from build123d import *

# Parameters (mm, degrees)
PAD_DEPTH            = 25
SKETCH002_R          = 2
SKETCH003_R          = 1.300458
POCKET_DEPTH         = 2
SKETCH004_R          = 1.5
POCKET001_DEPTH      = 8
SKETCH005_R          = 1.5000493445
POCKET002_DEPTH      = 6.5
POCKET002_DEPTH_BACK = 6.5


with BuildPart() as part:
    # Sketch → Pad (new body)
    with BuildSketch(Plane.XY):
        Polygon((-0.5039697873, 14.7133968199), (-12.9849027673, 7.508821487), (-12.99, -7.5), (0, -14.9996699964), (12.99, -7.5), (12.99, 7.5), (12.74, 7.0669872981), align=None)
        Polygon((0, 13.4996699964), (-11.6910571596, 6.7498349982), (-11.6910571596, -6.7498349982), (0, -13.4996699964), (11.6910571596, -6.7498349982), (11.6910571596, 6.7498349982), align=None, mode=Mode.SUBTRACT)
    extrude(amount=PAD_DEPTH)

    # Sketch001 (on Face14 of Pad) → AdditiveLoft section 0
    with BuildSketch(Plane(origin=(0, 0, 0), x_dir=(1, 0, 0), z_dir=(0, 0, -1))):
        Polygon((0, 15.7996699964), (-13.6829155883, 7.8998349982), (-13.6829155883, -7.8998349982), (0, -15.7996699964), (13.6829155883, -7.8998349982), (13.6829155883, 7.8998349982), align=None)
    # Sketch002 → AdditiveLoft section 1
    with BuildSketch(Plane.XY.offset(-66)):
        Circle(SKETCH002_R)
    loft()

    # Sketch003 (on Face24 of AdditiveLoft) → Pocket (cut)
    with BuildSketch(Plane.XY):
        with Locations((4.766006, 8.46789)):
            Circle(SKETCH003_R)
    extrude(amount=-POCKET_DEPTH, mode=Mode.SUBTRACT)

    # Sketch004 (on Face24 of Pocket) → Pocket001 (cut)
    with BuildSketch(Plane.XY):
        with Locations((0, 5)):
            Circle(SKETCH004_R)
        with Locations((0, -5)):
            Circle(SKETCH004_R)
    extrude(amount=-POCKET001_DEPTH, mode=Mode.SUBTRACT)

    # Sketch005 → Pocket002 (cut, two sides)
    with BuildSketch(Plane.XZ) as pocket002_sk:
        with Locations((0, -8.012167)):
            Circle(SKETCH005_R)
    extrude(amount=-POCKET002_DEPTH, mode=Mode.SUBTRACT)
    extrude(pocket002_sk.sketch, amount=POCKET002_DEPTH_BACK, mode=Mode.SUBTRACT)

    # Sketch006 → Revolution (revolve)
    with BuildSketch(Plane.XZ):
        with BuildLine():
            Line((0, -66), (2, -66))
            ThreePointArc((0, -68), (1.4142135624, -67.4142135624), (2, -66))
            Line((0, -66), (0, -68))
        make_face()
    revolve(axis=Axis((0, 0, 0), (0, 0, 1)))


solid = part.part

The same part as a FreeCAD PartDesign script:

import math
import FreeCAD as App
import Part
import Sketcher
from FreeCAD import Vector
Q = App.Units.Quantity

doc = App.newDocument("Part")
body = doc.addObject("PartDesign::Body", "Body")

sketch1 = doc.addObject("Sketcher::SketchObject", "Sketch")
body.addObject(sketch1)
sketch1.AttachmentSupport = (doc.XY_Plane, [""])
sketch1.MapMode = "FlatFace"
sketch1.addGeometry(Part.LineSegment(Vector(-0.50397, 14.713397, 0), Vector(-12.984903, 7.508821, 0)), False)
sketch1.addGeometry(Part.LineSegment(Vector(-12.984903, 7.508821, 0), Vector(-12.99, -7.5, 0)), False)
sketch1.addGeometry(Part.LineSegment(Vector(-12.99, -7.5, 0), Vector(0, -14.99967, 0)), False)
sketch1.addGeometry(Part.LineSegment(Vector(0, -14.99967, 0), Vector(12.99, -7.5, 0)), False)
sketch1.addGeometry(Part.LineSegment(Vector(12.99, -7.5, 0), Vector(12.99, 7.5, 0)), False)
sketch1.addGeometry(Part.LineSegment(Vector(12.99, 7.5, 0), Vector(12.74, 7.066987, 0)), False)
sketch1.addGeometry(Part.LineSegment(Vector(12.74, 7.066987, 0), Vector(-0.50397, 14.713397, 0)), False)
sketch1.addGeometry(Part.LineSegment(Vector(-11.691057, 6.749835, 0), Vector(0, 13.49967, 0)), False)
sketch1.addGeometry(Part.LineSegment(Vector(0, 13.49967, 0), Vector(11.691057, 6.749835, 0)), False)
sketch1.addGeometry(Part.LineSegment(Vector(11.691057, 6.749835, 0), Vector(11.691057, -6.749835, 0)), False)
sketch1.addGeometry(Part.LineSegment(Vector(11.691057, -6.749835, 0), Vector(0, -13.49967, 0)), False)
sketch1.addGeometry(Part.LineSegment(Vector(0, -13.49967, 0), Vector(-11.691057, -6.749835, 0)), False)
sketch1.addGeometry(Part.LineSegment(Vector(-11.691057, -6.749835, 0), Vector(-11.691057, 6.749835, 0)), False)
sketch1.addConstraint(Sketcher.Constraint("Coincident", 0, 2, 1, 1))
sketch1.addConstraint(Sketcher.Constraint("Coincident", 1, 2, 2, 1))
sketch1.addConstraint(Sketcher.Constraint("Coincident", 2, 2, 3, 1))
sketch1.addConstraint(Sketcher.Constraint("Coincident", 3, 2, 4, 1))
sketch1.addConstraint(Sketcher.Constraint("Coincident", 4, 2, 5, 1))
sketch1.addConstraint(Sketcher.Constraint("Coincident", 5, 2, 6, 1))
sketch1.addConstraint(Sketcher.Constraint("Coincident", 6, 2, 0, 1))
sketch1.addConstraint(Sketcher.Constraint("Coincident", 7, 2, 8, 1))
sketch1.addConstraint(Sketcher.Constraint("Coincident", 8, 2, 9, 1))
sketch1.addConstraint(Sketcher.Constraint("Coincident", 9, 2, 10, 1))
sketch1.addConstraint(Sketcher.Constraint("Coincident", 10, 2, 11, 1))
sketch1.addConstraint(Sketcher.Constraint("Coincident", 11, 2, 12, 1))
sketch1.addConstraint(Sketcher.Constraint("Coincident", 12, 2, 7, 1))
sketch1.addConstraint(Sketcher.Constraint("Vertical", 4))
sketch1.addConstraint(Sketcher.Constraint("Vertical", 9))
sketch1.addConstraint(Sketcher.Constraint("Vertical", 12))
sketch1.addConstraint(Sketcher.Constraint("Symmetric", 1, 2, 4, 2, -1, 1))
sketch1.addConstraint(Sketcher.Constraint("Symmetric", 7, 2, 10, 2, -1, 1))
sketch1.addConstraint(Sketcher.Constraint("Symmetric", 8, 2, 11, 2, -1, 1))
sketch1.addConstraint(Sketcher.Constraint("PointOnObject", 2, 2, -2))
sketch1.addConstraint(Sketcher.Constraint("PointOnObject", 7, 2, -2))
sketch1.addConstraint(Sketcher.Constraint("Perpendicular", 5, 6))
sketch1.addConstraint(Sketcher.Constraint("Parallel", 6, 8))
sketch1.addConstraint(Sketcher.Constraint("Parallel", 7, 10))
sketch1.addConstraint(Sketcher.Constraint("Horizontal", 1, 2, 3, 2))
sketch1.addConstraint(Sketcher.Constraint("Horizontal", 9, 2, 11, 2))
sketch1.addConstraint(Sketcher.Constraint("DistanceY", 4, 1, 4, 2, Q("15 mm")))
sketch1.addConstraint(Sketcher.Constraint("Angle", 5, Q("-120 deg")))
sketch1.addConstraint(Sketcher.Constraint("Distance", 5, Q("0.5 mm")))
sketch1.addConstraint(Sketcher.Constraint("DistanceY", 2, 2, 10, 2, Q("1.5 mm")))
sketch1.addConstraint(Sketcher.Constraint("DistanceX", 1, 2, -1, 1, Q("12.99 mm")))
sketch1.addConstraint(Sketcher.Constraint("DistanceY", 9, 2, 9, 1, Q("13.49967 mm")))
sketch1.addConstraint(Sketcher.Constraint("Distance", 6, Q("15.292819 mm")))
sketch1.addConstraint(Sketcher.Constraint("Distance", 7, Q("13.49967 mm")))
sketch1.addConstraint(Sketcher.Constraint("DistanceY", -1, 1, 0, 2, Q("7.508821 mm")))
sketch1.addConstraint(Sketcher.Constraint("Distance", 0, Q("14.411093 mm")))
pad1 = doc.addObject("PartDesign::Pad", "Pad")
body.addObject(pad1)
pad1.Profile = sketch1
pad1.Length = 25

sketch2 = doc.addObject("Sketcher::SketchObject", "Sketch001")
body.addObject(sketch2)
sketch2.AttachmentSupport = (doc.XY_Plane, [""])
sketch2.MapMode = "FlatFace"
sketch2.addGeometry(Part.LineSegment(Vector(0, -15.79967, 0), Vector(-13.682916, -7.899835, 0)), False)
sketch2.addGeometry(Part.LineSegment(Vector(-13.682916, -7.899835, 0), Vector(-13.682916, 7.899835, 0)), False)
sketch2.addGeometry(Part.LineSegment(Vector(-13.682916, 7.899835, 0), Vector(0, 15.79967, 0)), False)
sketch2.addGeometry(Part.LineSegment(Vector(0, 15.79967, 0), Vector(13.682916, 7.899835, 0)), False)
sketch2.addGeometry(Part.LineSegment(Vector(13.682916, 7.899835, 0), Vector(13.682916, -7.899835, 0)), False)
sketch2.addGeometry(Part.LineSegment(Vector(13.682916, -7.899835, 0), Vector(0, -15.79967, 0)), False)
sketch2.addConstraint(Sketcher.Constraint("Coincident", 0, 2, 1, 1))
sketch2.addConstraint(Sketcher.Constraint("Coincident", 1, 2, 2, 1))
sketch2.addConstraint(Sketcher.Constraint("Coincident", 2, 2, 3, 1))
sketch2.addConstraint(Sketcher.Constraint("Coincident", 3, 2, 4, 1))
sketch2.addConstraint(Sketcher.Constraint("Coincident", 4, 2, 5, 1))
sketch2.addConstraint(Sketcher.Constraint("Coincident", 5, 2, 0, 1))
sketch2.addConstraint(Sketcher.Constraint("Vertical", 1))
sketch2.addConstraint(Sketcher.Constraint("Vertical", 4))
sketch2.addConstraint(Sketcher.Constraint("Symmetric", 0, 2, 3, 2, -1, 1))
sketch2.addConstraint(Sketcher.Constraint("Symmetric", 2, 2, 5, 2, -1, 1))
sketch2.addConstraint(Sketcher.Constraint("PointOnObject", 2, 2, -2))
sketch2.addConstraint(Sketcher.Constraint("Parallel", 2, 5))
sketch2.addConstraint(Sketcher.Constraint("Horizontal", 1, 2, 3, 2))
sketch2.addConstraint(Sketcher.Constraint("Angle", 0, Q("150 deg")))
sketch2.addConstraint(Sketcher.Constraint("DistanceY", 1, 1, 1, 2, Q("15.79967 mm")))
sketch2.addConstraint(Sketcher.Constraint("Distance", 0, Q("15.79967 mm")))

sketch3 = doc.addObject("Sketcher::SketchObject", "Sketch002")
body.addObject(sketch3)
sketch3.AttachmentSupport = (doc.XY_Plane, [""])
sketch3.MapMode = "FlatFace"
sketch3.AttachmentOffset = App.Placement(Vector(0, 0, -66), App.Rotation())
sketch3.addGeometry(Part.Circle(Vector(0, 0, 0), Vector(0, 0, 1), 2), False)
sketch3.addConstraint(Sketcher.Constraint("Coincident", 0, 3, -1, 1))
sketch3.addConstraint(Sketcher.Constraint("Diameter", 0, Q("4 mm")))

additiveloft = doc.addObject("PartDesign::AdditiveLoft", "AdditiveLoft")
body.addObject(additiveloft)
additiveloft.Profile = sketch2
additiveloft.Sections = [sketch3]

sketch4 = doc.addObject("Sketcher::SketchObject", "Sketch003")
body.addObject(sketch4)
sketch4.AttachmentSupport = (doc.XY_Plane, [""])
sketch4.MapMode = "FlatFace"
sketch4.addGeometry(Part.Circle(Vector(4.766006, 8.46789, 0), Vector(0, 0, 1), 1.300458), False)
sketch4.addConstraint(Sketcher.Constraint("Diameter", 0, Q("2.600916 mm")))
sketch4.addConstraint(Sketcher.Constraint("DistanceY", -1, 1, 0, 3, Q("8.46789 mm")))
sketch4.addConstraint(Sketcher.Constraint("DistanceX", -1, 1, 0, 3, Q("4.766006 mm")))
pocket1 = doc.addObject("PartDesign::Pocket", "Pocket")
body.addObject(pocket1)
pocket1.Profile = sketch4
pocket1.Length = 2

sketch5 = doc.addObject("Sketcher::SketchObject", "Sketch004")
body.addObject(sketch5)
sketch5.AttachmentSupport = (doc.XY_Plane, [""])
sketch5.MapMode = "FlatFace"
sketch5.addGeometry(Part.Circle(Vector(0, 5, 0), Vector(0, 0, 1), 1.5), False)
sketch5.addGeometry(Part.Circle(Vector(0, -5, 0), Vector(0, 0, 1), 1.5), False)
sketch5.addConstraint(Sketcher.Constraint("Equal", 0, 1))
sketch5.addConstraint(Sketcher.Constraint("Symmetric", 0, 3, 1, 3, -1, 1))
sketch5.addConstraint(Sketcher.Constraint("PointOnObject", 0, 3, -2))
sketch5.addConstraint(Sketcher.Constraint("Diameter", 0, Q("3 mm")))
sketch5.addConstraint(Sketcher.Constraint("DistanceY", -1, 1, 0, 3, Q("5 mm")))
pocket2 = doc.addObject("PartDesign::Pocket", "Pocket001")
body.addObject(pocket2)
pocket2.Profile = sketch5
pocket2.Length = 8

sketch6 = doc.addObject("Sketcher::SketchObject", "Sketch005")
body.addObject(sketch6)
sketch6.AttachmentSupport = (doc.XZ_Plane, [""])
sketch6.MapMode = "FlatFace"
sketch6.addGeometry(Part.Circle(Vector(0, -8.012167, 0), Vector(0, 0, 1), 1.500049), False)
sketch6.addConstraint(Sketcher.Constraint("PointOnObject", 0, 3, -2))
sketch6.addConstraint(Sketcher.Constraint("Diameter", 0, Q("3.000099 mm")))
sketch6.addConstraint(Sketcher.Constraint("DistanceY", 0, 3, -1, 1, Q("8.012167 mm")))
pocket3 = doc.addObject("PartDesign::Pocket", "Pocket002")
body.addObject(pocket3)
pocket3.Profile = sketch6
pocket3.Type = "TwoLengths"
pocket3.Length = 6.5
pocket3.Length2 = 6.5

sketch7 = doc.addObject("Sketcher::SketchObject", "Sketch006")
body.addObject(sketch7)
sketch7.AttachmentSupport = (doc.XZ_Plane, [""])
sketch7.MapMode = "FlatFace"
sketch7.addGeometry(Part.LineSegment(Vector(2, -66, 0), Vector(0, -66, 0)), False)
sketch7.addGeometry(Part.LineSegment(Vector(0, -66, 0), Vector(0, -68, 0)), False)
sketch7.addGeometry(Part.ArcOfCircle(Part.Circle(Vector(0, -66, 0), Vector(0, 0, 1), 2), math.radians(-90), math.radians(0)), False)
sketch7.addConstraint(Sketcher.Constraint("Coincident", 0, 2, 1, 1))
sketch7.addConstraint(Sketcher.Constraint("Coincident", 1, 2, 2, 1))
sketch7.addConstraint(Sketcher.Constraint("Coincident", 2, 2, 0, 1))
sketch7.addConstraint(Sketcher.Constraint("Horizontal", 0))
sketch7.addConstraint(Sketcher.Constraint("Vertical", 1))
sketch7.addConstraint(Sketcher.Constraint("Coincident", 0, 2, 2, 3))
sketch7.addConstraint(Sketcher.Constraint("PointOnObject", 2, 3, -2))
sketch7.addConstraint(Sketcher.Constraint("Radius", 2, Q("2 mm")))
sketch7.addConstraint(Sketcher.Constraint("DistanceY", 2, 3, -1, 1, Q("66 mm")))
revolution = doc.addObject("PartDesign::Revolution", "Revolution")
body.addObject(revolution)
revolution.Profile = sketch7
revolution.ReferenceAxis = (sketch7, ["V_Axis"])
revolution.Angle = 360

doc.recompute()
